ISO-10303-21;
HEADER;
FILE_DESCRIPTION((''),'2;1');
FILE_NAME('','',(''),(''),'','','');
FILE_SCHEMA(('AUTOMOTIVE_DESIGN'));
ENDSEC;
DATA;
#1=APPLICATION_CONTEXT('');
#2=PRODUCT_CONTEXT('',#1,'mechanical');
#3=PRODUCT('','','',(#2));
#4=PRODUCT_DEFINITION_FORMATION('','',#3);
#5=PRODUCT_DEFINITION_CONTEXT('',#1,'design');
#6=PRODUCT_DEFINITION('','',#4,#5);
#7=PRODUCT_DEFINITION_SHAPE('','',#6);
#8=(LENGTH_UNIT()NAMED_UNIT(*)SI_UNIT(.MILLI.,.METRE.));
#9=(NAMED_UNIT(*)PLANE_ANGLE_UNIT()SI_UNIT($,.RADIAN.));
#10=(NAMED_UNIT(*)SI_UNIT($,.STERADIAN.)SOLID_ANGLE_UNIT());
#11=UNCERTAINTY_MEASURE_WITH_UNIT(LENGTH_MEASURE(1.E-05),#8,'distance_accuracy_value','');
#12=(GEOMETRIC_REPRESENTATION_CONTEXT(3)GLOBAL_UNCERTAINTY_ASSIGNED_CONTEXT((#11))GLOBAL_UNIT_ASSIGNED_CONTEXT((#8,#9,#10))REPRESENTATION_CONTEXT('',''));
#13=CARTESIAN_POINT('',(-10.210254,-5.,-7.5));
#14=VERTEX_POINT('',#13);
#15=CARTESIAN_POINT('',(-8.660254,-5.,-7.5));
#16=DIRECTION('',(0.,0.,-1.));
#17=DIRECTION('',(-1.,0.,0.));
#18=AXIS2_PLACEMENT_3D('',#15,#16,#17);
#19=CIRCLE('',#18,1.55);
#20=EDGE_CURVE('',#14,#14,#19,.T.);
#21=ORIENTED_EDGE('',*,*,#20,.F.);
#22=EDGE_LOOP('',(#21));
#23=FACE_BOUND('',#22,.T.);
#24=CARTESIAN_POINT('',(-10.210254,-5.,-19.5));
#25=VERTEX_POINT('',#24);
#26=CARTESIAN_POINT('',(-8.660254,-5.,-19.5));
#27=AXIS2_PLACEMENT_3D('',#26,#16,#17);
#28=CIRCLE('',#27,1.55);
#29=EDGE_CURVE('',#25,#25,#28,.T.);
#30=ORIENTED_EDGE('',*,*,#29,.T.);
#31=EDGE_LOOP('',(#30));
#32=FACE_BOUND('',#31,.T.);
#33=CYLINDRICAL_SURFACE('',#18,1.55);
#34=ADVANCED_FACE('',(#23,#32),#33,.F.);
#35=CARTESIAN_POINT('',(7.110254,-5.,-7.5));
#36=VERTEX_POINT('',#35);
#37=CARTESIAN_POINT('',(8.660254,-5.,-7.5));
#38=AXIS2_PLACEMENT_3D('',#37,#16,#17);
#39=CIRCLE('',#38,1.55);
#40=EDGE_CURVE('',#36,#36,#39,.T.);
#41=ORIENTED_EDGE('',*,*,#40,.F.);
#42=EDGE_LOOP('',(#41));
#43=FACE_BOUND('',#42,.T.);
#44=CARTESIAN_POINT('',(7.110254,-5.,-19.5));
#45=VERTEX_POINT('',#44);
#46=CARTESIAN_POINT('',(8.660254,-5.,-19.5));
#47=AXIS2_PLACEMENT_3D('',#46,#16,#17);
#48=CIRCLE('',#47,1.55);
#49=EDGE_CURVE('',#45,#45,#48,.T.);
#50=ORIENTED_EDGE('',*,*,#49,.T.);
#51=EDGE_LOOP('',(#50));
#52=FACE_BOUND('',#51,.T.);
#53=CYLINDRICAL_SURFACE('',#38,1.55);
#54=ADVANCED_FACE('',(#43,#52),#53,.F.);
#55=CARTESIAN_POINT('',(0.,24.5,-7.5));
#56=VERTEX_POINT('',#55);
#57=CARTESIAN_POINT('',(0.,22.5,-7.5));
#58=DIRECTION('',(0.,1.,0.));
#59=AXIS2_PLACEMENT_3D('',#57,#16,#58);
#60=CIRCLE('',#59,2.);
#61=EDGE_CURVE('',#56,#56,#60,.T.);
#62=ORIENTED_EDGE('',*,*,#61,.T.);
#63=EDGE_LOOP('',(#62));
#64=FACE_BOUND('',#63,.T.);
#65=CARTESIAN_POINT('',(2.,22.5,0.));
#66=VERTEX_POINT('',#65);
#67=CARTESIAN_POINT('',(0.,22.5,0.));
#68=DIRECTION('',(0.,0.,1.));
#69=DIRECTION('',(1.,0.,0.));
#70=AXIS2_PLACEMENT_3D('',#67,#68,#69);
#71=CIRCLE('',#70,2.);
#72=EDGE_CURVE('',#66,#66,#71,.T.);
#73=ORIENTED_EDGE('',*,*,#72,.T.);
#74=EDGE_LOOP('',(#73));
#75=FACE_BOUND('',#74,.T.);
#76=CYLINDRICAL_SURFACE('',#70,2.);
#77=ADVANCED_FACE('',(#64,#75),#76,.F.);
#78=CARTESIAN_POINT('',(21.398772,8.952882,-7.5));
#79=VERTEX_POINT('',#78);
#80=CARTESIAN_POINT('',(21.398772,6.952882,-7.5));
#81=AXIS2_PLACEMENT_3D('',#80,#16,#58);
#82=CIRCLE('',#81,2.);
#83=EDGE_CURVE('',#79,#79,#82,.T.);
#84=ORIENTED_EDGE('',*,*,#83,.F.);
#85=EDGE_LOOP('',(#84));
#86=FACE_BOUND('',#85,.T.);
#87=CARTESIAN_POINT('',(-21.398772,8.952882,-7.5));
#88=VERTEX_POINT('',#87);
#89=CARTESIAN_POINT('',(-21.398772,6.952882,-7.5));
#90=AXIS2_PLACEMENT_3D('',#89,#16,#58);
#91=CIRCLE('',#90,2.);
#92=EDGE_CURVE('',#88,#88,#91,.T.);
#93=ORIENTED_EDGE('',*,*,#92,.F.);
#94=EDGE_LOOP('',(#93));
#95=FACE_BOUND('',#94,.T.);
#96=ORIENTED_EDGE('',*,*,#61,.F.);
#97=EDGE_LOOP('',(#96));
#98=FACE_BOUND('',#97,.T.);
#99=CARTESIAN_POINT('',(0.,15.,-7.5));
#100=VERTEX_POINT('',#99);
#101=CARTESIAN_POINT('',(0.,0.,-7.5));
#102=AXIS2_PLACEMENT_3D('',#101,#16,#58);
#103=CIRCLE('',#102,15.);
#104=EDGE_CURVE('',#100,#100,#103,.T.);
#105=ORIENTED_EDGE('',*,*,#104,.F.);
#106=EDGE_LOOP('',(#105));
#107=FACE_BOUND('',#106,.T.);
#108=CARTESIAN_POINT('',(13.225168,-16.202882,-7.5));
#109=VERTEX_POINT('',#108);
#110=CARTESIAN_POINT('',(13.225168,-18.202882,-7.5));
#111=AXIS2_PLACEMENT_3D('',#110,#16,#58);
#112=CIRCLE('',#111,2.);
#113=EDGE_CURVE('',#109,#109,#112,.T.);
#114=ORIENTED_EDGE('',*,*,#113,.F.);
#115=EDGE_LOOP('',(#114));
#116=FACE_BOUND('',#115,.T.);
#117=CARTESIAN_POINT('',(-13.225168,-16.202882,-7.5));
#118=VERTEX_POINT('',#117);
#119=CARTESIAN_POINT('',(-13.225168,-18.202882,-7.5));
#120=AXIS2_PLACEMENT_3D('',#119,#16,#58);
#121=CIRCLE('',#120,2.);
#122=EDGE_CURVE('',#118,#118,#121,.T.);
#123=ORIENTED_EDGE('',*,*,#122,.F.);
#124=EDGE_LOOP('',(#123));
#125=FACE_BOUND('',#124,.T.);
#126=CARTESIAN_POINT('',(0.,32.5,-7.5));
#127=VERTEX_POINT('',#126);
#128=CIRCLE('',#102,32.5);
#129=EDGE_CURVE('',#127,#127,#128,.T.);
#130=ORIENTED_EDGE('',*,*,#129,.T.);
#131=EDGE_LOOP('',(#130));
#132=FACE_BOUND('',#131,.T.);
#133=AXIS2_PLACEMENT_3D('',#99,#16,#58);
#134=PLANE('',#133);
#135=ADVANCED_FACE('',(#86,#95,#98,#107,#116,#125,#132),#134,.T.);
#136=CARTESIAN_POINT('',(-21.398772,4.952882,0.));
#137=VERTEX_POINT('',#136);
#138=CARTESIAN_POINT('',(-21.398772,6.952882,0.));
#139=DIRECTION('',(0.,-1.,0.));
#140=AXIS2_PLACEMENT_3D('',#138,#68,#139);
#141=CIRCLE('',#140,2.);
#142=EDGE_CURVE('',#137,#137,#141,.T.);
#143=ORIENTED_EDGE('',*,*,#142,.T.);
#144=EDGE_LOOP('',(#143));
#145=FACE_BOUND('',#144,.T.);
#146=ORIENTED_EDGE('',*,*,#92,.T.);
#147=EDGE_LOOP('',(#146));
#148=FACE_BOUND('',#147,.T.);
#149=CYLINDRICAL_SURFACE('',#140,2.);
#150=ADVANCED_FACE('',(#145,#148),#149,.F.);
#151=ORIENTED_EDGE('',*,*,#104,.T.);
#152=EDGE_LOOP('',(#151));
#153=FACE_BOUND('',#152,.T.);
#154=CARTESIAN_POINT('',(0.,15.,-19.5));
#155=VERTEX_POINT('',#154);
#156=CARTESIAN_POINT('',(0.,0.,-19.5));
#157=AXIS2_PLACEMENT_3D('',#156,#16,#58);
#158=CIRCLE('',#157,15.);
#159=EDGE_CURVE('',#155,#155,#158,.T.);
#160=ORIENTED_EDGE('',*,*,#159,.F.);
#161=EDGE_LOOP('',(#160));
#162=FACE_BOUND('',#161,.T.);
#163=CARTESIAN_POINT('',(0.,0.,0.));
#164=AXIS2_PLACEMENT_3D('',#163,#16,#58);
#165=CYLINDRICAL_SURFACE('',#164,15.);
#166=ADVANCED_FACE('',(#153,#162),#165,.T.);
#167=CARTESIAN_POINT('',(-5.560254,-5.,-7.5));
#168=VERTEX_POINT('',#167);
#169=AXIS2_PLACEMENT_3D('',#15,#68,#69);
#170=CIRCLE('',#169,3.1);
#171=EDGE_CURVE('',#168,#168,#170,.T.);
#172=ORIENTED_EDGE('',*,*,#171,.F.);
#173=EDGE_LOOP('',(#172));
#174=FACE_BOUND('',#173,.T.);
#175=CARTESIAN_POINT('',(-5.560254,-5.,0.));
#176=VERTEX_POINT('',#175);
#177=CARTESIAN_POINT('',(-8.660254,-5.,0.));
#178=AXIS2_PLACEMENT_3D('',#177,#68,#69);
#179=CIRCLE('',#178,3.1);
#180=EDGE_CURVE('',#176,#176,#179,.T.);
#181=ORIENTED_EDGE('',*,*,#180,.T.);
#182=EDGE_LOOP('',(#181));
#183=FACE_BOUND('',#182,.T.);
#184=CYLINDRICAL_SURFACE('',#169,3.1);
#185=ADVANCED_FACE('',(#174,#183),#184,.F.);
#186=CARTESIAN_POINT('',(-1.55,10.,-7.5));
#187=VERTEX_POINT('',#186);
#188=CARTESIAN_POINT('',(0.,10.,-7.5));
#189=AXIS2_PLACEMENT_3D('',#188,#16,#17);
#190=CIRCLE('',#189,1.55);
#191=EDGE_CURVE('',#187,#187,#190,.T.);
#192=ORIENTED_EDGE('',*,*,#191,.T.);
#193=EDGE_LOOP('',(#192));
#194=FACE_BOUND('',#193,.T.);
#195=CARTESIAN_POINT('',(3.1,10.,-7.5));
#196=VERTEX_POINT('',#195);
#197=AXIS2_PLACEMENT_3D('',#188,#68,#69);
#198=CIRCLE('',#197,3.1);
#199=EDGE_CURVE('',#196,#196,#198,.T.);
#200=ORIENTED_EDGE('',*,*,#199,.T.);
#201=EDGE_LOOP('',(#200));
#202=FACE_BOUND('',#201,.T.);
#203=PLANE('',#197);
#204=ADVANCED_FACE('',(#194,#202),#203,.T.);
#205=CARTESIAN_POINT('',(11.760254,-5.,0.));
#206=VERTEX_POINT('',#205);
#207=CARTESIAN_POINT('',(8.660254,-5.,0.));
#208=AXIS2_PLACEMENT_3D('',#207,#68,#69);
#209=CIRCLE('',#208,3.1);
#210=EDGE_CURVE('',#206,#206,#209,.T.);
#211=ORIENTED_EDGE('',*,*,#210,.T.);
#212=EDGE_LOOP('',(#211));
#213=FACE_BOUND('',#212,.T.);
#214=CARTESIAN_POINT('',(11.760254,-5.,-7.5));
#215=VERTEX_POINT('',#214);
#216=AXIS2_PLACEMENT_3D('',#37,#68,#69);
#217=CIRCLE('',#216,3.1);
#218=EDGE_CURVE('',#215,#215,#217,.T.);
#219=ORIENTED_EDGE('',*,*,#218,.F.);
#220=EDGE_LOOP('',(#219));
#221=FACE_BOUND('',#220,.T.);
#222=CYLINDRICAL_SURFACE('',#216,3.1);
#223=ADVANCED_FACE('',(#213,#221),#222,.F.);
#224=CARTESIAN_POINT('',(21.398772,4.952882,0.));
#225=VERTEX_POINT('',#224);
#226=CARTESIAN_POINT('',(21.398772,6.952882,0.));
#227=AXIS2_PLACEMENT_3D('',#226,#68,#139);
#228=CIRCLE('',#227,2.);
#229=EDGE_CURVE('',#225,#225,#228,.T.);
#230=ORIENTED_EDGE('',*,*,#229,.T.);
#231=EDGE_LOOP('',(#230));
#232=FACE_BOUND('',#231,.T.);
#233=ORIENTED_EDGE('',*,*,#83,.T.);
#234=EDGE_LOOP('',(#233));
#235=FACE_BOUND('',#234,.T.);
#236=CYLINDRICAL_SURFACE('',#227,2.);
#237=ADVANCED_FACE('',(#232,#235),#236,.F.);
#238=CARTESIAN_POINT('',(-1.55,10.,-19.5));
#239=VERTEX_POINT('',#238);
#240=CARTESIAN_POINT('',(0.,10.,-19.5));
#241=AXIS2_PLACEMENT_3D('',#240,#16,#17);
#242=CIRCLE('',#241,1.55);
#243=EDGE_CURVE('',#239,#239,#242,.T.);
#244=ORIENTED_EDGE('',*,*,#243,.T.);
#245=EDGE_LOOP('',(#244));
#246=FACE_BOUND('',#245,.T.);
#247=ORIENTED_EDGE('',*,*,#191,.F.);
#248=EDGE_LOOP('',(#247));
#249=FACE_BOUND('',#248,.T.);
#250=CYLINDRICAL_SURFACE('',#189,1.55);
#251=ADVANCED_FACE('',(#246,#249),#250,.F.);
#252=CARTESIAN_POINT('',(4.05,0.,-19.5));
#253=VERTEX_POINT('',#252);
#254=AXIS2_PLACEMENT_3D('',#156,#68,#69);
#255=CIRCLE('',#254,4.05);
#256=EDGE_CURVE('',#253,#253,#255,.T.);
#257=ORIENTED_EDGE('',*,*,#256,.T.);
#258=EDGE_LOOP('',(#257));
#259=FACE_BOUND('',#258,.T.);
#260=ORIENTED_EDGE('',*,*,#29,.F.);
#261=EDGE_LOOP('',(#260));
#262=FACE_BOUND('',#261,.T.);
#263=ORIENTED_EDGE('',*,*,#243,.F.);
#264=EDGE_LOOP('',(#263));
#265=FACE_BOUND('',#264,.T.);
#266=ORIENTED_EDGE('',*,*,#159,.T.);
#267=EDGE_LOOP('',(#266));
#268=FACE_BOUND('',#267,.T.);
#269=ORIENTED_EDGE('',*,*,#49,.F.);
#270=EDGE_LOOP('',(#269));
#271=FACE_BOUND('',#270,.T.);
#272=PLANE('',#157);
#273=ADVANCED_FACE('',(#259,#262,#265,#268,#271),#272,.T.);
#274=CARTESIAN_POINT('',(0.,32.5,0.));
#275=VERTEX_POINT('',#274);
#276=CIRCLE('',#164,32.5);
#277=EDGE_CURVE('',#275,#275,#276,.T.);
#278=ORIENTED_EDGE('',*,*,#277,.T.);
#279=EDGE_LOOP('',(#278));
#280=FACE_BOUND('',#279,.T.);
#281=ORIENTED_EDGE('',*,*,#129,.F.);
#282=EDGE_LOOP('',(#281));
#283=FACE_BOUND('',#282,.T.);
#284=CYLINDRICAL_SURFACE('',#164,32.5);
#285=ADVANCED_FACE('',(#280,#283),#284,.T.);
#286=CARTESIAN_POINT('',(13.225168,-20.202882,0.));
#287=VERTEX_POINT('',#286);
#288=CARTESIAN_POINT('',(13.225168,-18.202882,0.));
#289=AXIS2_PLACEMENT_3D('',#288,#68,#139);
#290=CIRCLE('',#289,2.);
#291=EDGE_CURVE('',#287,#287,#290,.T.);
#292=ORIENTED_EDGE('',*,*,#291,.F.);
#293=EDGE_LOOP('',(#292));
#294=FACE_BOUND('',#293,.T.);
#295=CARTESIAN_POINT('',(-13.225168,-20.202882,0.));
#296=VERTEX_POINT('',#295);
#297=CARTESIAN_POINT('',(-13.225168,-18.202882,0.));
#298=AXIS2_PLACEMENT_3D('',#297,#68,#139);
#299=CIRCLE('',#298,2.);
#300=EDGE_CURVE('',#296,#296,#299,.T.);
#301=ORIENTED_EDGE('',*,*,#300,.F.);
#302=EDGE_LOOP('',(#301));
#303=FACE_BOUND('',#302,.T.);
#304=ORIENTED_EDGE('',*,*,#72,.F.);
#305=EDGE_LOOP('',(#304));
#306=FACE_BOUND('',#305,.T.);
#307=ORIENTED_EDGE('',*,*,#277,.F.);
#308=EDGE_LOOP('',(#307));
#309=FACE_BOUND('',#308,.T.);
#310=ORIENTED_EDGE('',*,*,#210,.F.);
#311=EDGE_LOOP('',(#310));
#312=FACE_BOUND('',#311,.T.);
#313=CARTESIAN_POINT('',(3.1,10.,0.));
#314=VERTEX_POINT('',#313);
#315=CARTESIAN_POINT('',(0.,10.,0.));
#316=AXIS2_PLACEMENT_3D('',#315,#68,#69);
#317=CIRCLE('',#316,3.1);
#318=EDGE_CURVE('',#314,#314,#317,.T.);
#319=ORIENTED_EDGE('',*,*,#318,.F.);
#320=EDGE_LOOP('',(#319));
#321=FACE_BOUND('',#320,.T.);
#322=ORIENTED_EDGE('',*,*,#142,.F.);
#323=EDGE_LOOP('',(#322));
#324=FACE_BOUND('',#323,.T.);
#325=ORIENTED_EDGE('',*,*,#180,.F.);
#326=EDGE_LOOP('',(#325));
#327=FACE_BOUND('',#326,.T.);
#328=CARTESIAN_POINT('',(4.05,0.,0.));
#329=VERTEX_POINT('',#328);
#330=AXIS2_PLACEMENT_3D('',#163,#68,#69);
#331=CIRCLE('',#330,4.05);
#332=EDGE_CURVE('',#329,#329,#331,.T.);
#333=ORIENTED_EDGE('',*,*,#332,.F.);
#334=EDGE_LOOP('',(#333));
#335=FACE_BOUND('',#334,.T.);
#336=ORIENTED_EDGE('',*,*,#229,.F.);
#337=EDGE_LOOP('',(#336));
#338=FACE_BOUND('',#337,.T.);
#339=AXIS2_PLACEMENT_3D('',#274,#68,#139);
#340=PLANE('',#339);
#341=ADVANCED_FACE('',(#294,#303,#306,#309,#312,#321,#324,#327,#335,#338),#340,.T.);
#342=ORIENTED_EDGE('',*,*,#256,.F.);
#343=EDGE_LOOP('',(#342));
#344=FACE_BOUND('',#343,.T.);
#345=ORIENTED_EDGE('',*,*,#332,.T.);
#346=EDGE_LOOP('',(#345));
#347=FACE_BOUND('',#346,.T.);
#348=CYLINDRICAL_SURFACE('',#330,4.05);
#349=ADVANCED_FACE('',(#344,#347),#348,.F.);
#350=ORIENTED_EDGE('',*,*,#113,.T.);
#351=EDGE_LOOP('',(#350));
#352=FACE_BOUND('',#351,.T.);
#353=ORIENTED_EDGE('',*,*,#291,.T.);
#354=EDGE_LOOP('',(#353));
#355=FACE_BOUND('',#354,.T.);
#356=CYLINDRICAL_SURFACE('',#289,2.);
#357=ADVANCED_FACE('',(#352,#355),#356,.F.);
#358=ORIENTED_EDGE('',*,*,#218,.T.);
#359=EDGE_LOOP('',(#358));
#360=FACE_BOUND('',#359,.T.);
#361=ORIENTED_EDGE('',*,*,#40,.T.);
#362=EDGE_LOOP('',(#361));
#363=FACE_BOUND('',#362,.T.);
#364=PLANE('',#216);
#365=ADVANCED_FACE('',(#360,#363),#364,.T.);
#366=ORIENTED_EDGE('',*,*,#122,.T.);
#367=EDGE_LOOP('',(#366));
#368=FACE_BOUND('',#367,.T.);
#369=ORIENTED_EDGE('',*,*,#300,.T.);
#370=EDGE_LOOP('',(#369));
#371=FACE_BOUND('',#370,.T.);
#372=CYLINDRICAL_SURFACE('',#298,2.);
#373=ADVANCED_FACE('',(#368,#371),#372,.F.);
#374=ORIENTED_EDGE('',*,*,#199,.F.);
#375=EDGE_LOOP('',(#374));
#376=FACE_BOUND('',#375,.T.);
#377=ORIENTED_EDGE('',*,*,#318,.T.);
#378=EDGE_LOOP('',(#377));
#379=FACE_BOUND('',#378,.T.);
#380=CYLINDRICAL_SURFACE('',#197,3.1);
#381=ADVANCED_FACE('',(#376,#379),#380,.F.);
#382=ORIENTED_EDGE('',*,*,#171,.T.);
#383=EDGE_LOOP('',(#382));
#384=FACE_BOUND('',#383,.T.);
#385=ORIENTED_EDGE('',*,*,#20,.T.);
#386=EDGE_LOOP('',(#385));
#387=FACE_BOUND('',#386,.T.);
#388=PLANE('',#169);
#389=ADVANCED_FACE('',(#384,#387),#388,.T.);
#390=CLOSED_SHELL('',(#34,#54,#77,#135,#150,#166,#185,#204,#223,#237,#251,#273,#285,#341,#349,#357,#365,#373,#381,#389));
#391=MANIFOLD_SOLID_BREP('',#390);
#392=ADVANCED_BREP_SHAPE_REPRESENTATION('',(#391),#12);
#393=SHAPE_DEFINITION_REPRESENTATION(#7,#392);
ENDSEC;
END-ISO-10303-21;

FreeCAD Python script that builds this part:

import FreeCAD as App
import Part
import Sketcher
Q = App.Units.Quantity

doc = App.newDocument("Part")
params = doc.addObject("Spreadsheet::Sheet", "Params")
for row, (alias, value) in enumerate([
    ("sketch1_width", "15 mm"),
    ("sketch1_height", "12 mm"),
    ("sketch1_width2", "17.5 mm"),
    ("sketch1_height2", "19.5 mm"),
    ("revolution_angle", "360 deg"),
    ("sketch2_diameter", "4 mm"),
    ("hole_diameter", "4 mm"),
    ("sketch3_diameter", "8.1 mm"),
    ("hole2_diameter", "8.1 mm"),
    ("sketch4_diameter", "3.1 mm"),
    ("pocket1_length", "12 mm"),
    ("sketch5_diameter", "6.2 mm"),
    ("pocket2_length", "7.5 mm"),
], start=1):
    params.set(f"A{row}", alias)
    params.set(f"B{row}", "=" + value)
    params.setAlias(f"B{row}", alias)

body = doc.addObject("PartDesign::Body", "Body")

# Sketch on YZ plane
sketch1 = doc.addObject("Sketcher::SketchObject", "Sketch")
body.addObject(sketch1)
sketch1.AttachmentSupport = (doc.YZ_Plane, [""])
sketch1.MapMode = "FlatFace"
sketch1.addGeometry([
    Part.LineSegment(App.Vector(0, 0, 0), App.Vector(0, -20, 0)),  # 0
    Part.LineSegment(App.Vector(0, -20, 0), App.Vector(15, -20, 0)),  # 1
    Part.LineSegment(App.Vector(15, -20, 0), App.Vector(15, -8, 0)),  # 2
    Part.LineSegment(App.Vector(15, -8, 0), App.Vector(32, -8, 0)),  # 3
    Part.LineSegment(App.Vector(32, -8, 0), App.Vector(32, 0, 0)),  # 4
    Part.LineSegment(App.Vector(32, 0, 0), App.Vector(0, 0, 0)),  # 5
], False)
sketch1.addConstraint([
    Sketcher.Constraint("Coincident", 0, 2, 1, 1),
    Sketcher.Constraint("Coincident", 1, 2, 2, 1),
    Sketcher.Constraint("Coincident", 2, 2, 3, 1),
    Sketcher.Constraint("Coincident", 3, 2, 4, 1),
    Sketcher.Constraint("Coincident", 4, 2, 5, 1),
    Sketcher.Constraint("Coincident", 5, 2, 0, 1),
    Sketcher.Constraint("Vertical", 0),
    Sketcher.Constraint("Horizontal", 1),
    Sketcher.Constraint("Vertical", 2),
    Sketcher.Constraint("Horizontal", 3),
    Sketcher.Constraint("Vertical", 4),
    Sketcher.Constraint("Horizontal", 5),
    Sketcher.Constraint("Coincident", 5, 2, -1, 1),
    Sketcher.Constraint("DistanceX", 1, 1, 1, 2, Q("15 mm")),
    Sketcher.Constraint("DistanceY", 2, 1, 2, 2, Q("12 mm")),
    Sketcher.Constraint("DistanceX", 3, 1, 3, 2, Q("17.5 mm")),
    Sketcher.Constraint("DistanceY", 0, 2, 0, 1, Q("19.5 mm")),
])
sketch1.setExpression("Constraints[13]", "Params.sketch1_width")
sketch1.setExpression("Constraints[14]", "Params.sketch1_height")
sketch1.setExpression("Constraints[15]", "Params.sketch1_width2")
sketch1.setExpression("Constraints[16]", "Params.sketch1_height2")
revolution = doc.addObject("PartDesign::Revolution", "Revolution")
body.addObject(revolution)
revolution.Profile = sketch1
revolution.ReferenceAxis = (sketch1, ["V_Axis"])
revolution.setExpression("Angle", "Params.revolution_angle")

# Sketch on XY plane
sketch2 = doc.addObject("Sketcher::SketchObject", "Sketch001")
body.addObject(sketch2)
sketch2.AttachmentSupport = (doc.XY_Plane, [""])
sketch2.MapMode = "FlatFace"
sketch2.addGeometry(Part.Circle(App.Vector(0, 22.5, 0), App.Vector(0, 0, 1), 2), False)
sketch2.addConstraint([
    Sketcher.Constraint("PointOnObject", 0, 3, -2),
    Sketcher.Constraint("Diameter", 0, Q("4 mm")),
    Sketcher.Constraint("DistanceY", -1, 1, 0, 3, Q("22.5 mm")),
])
sketch2.setExpression("Constraints[1]", "Params.sketch2_diameter")
doc.recompute()
hole = doc.addObject("PartDesign::Hole", "Hole")
body.addObject(hole)
hole.Profile = sketch2
hole.ThreadType = "None"
hole.setExpression("Diameter", "Params.hole_diameter")
hole.DepthType = "ThroughAll"

# Sketch on XY plane
sketch3 = doc.addObject("Sketcher::SketchObject", "Sketch002")
body.addObject(sketch3)
sketch3.AttachmentSupport = (doc.XY_Plane, [""])
sketch3.MapMode = "FlatFace"
sketch3.addGeometry(Part.Circle(App.Vector(0, 0, 0), App.Vector(0, 0, 1), 4), False)
sketch3.addConstraint([
    Sketcher.Constraint("Coincident", 0, 3, -1, 1),
    Sketcher.Constraint("Diameter", 0, Q("8.1 mm")),
])
sketch3.setExpression("Constraints[1]", "Params.sketch3_diameter")
doc.recompute()
hole2 = doc.addObject("PartDesign::Hole", "Hole001")
body.addObject(hole2)
hole2.Profile = sketch3
hole2.ThreadType = "None"
hole2.setExpression("Diameter", "Params.hole2_diameter")
hole2.DepthType = "ThroughAll"

# Sketch on XY plane
sketch4 = doc.addObject("Sketcher::SketchObject", "Sketch003")
body.addObject(sketch4)
sketch4.AttachmentSupport = (doc.XY_Plane, [""])
sketch4.MapMode = "FlatFace"
sketch4.AttachmentOffset = App.Placement(App.Vector(0, 0, -19.5), App.Rotation())
sketch4.addGeometry([
    Part.Circle(App.Vector(0, 10, 0), App.Vector(0, 0, 1), 1.6),
    Part.Circle(App.Vector(-8.7, -5, 0), App.Vector(0, 0, 1), 1.6),
    Part.Circle(App.Vector(8.7, -5, 0), App.Vector(0, 0, 1), 1.6),
], False)
sketch4.addConstraint([
    Sketcher.Constraint("Equal", 0, 1),
    Sketcher.Constraint("Equal", 1, 2),
    Sketcher.Constraint("Symmetric", 1, 3, 2, 3, -2),
    Sketcher.Constraint("PointOnObject", 0, 3, -2),
    Sketcher.Constraint("Diameter", 0, Q("3.1 mm")),
    Sketcher.Constraint("DistanceY", -1, 1, 0, 3, Q("10 mm")),
    Sketcher.Constraint("DistanceY", 1, 3, -1, 1, Q("5 mm")),
    Sketcher.Constraint("DistanceX", 1, 3, 2, 3, Q("17.320508 mm")),
])
sketch4.setExpression("Constraints[4]", "Params.sketch4_diameter")
pocket1 = doc.addObject("PartDesign::Pocket", "Pocket")
body.addObject(pocket1)
pocket1.Profile = sketch4
pocket1.setExpression("Length", "Params.pocket1_length")
pocket1.Reversed = True
doc.recompute()

polarpattern = doc.addObject("PartDesign::PolarPattern", "PolarPattern")
body.addObject(polarpattern)
polarpattern.Originals = [hole]
polarpattern.Axis = (doc.Z_Axis, [""])
polarpattern.Angle = 360
polarpattern.Occurrences = 5
body.Tip = polarpattern

# Sketch on XY plane
sketch5 = doc.addObject("Sketcher::SketchObject", "Sketch004")
body.addObject(sketch5)
sketch5.AttachmentSupport = (doc.XY_Plane, [""])
sketch5.MapMode = "FlatFace"
sketch5.addGeometry([
    Part.Circle(App.Vector(0, 10, 0), App.Vector(0, 0, 1), 3.1),
    Part.Circle(App.Vector(8.7, -5, 0), App.Vector(0, 0, 1), 3.1),
    Part.Circle(App.Vector(-8.7, -5, 0), App.Vector(0, 0, 1), 3.1),
], False)
sketch5.addConstraint([
    Sketcher.Constraint("Equal", 0, 1),
    Sketcher.Constraint("Equal", 1, 2),
    Sketcher.Constraint("Symmetric", 1, 3, 2, 3, -2),
    Sketcher.Constraint("PointOnObject", 0, 3, -2),
    Sketcher.Constraint("Diameter", 0, Q("6.2 mm")),
    Sketcher.Constraint("DistanceY", -1, 1, 0, 3, Q("10 mm")),
    Sketcher.Constraint("DistanceY", 1, 3, -1, 1, Q("5 mm")),
    Sketcher.Constraint("DistanceX", 2, 3, 1, 3, Q("17.320508 mm")),
])
sketch5.setExpression("Constraints[4]", "Params.sketch5_diameter")
pocket2 = doc.addObject("PartDesign::Pocket", "Pocket001")
body.addObject(pocket2)
pocket2.Profile = sketch5
pocket2.setExpression("Length", "Params.pocket2_length")

doc.recompute()
